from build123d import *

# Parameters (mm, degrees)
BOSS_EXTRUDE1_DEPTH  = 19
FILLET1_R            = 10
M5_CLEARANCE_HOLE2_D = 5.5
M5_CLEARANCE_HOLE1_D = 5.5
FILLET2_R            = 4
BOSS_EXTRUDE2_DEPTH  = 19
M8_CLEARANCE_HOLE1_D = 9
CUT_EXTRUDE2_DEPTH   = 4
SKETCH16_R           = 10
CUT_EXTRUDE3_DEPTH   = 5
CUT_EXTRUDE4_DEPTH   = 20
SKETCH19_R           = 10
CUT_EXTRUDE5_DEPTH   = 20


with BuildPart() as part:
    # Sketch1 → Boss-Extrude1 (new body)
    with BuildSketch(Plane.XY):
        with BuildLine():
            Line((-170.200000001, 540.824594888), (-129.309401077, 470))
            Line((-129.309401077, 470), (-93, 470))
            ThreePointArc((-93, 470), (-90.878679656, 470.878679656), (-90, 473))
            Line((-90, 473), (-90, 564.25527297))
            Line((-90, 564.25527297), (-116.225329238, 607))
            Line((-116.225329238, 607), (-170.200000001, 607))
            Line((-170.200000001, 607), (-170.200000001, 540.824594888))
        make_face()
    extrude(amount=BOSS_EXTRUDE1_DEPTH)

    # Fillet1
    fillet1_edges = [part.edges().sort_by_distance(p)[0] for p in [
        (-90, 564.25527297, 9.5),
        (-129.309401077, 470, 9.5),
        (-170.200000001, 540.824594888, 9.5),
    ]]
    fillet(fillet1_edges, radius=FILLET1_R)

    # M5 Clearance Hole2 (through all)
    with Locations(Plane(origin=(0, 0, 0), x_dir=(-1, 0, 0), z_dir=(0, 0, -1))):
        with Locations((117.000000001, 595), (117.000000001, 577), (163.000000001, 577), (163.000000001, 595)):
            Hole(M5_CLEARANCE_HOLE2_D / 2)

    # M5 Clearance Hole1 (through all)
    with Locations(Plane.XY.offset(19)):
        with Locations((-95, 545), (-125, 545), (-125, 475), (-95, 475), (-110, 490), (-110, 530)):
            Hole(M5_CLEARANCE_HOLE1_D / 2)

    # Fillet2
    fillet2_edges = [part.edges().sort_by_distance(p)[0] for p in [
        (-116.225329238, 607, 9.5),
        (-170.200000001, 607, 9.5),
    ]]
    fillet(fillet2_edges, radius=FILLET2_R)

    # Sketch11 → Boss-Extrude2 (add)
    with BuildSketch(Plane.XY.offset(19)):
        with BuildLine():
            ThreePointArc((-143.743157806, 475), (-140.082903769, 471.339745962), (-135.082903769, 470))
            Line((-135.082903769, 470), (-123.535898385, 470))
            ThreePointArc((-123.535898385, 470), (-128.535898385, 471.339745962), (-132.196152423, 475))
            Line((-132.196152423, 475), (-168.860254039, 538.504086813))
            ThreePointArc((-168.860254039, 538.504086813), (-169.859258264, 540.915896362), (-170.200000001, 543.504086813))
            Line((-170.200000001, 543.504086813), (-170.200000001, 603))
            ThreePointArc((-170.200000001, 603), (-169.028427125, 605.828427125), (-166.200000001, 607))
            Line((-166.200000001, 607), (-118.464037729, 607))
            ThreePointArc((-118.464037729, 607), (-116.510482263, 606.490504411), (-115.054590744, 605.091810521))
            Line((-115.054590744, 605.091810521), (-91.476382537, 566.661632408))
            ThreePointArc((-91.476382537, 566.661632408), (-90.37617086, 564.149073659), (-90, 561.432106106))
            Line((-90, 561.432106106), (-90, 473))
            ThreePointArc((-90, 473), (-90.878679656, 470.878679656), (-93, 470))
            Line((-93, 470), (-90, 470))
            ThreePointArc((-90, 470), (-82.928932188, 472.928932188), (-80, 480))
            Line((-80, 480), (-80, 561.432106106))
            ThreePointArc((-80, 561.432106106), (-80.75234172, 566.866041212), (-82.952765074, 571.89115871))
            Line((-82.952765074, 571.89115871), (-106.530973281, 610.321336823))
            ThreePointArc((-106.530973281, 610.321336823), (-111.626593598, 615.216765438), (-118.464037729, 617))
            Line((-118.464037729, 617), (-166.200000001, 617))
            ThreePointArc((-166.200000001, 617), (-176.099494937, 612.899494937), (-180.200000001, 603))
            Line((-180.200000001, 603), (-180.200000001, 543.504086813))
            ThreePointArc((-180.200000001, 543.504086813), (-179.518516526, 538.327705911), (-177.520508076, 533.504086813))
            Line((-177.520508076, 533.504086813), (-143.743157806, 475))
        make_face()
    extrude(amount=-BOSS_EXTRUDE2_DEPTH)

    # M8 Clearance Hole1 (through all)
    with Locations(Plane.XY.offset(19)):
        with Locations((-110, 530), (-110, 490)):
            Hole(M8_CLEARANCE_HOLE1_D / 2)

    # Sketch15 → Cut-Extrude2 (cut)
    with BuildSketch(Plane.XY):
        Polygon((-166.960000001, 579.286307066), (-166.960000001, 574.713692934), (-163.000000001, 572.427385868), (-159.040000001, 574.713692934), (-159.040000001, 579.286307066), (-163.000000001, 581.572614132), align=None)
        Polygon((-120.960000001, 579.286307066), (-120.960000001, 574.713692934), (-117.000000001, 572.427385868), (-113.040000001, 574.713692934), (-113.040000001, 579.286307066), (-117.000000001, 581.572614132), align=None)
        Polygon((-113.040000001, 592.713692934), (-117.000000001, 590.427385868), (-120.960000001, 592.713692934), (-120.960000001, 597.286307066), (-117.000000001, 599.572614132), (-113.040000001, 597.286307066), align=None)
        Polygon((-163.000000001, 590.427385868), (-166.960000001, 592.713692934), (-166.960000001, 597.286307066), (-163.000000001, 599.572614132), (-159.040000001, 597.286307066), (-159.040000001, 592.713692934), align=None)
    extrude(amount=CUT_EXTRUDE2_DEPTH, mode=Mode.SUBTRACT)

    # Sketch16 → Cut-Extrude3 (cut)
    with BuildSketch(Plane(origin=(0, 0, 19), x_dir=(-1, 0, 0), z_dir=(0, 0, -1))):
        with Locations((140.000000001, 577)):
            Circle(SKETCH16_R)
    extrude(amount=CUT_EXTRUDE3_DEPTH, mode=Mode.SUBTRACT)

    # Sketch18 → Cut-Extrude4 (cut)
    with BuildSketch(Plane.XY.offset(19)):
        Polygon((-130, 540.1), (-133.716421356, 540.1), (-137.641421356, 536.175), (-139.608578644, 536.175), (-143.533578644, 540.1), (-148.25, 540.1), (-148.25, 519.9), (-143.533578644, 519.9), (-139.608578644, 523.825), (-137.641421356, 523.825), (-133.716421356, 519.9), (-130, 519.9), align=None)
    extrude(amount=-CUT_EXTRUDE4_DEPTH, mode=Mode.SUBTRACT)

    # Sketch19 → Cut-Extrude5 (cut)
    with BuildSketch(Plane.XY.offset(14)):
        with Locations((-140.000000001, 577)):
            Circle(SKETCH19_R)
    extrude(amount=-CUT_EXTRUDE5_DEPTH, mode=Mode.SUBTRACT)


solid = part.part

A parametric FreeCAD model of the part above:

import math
import FreeCAD as App
import Part
import Sketcher

V = App.Vector
Q = App.Units.Quantity


def edges_at(feature, points):
    """Names of the edges that pass closest to the given points."""
    edges = feature.Shape.Edges
    near = lambda p: min(range(len(edges)), key=lambda i: edges[i].distToShape(Part.Vertex(*p))[0])
    return sorted({f"Edge{near(p) + 1}" for p in points})

doc = App.newDocument("Part")
body = doc.addObject("PartDesign::Body", "Body")

sketch1 = doc.addObject("Sketcher::SketchObject", "Sketch")
body.addObject(sketch1)
sketch1.AttachmentSupport = (doc.XY_Plane, [""])
sketch1.MapMode = "FlatFace"
sketch1.addGeometry([
    Part.LineSegment(V(-170.2, 540.8, 0), V(-129.3, 470, 0)),
    Part.LineSegment(V(-129.3, 470, 0), V(-93, 470, 0)),
    Part.ArcOfCircle(Part.Circle(V(-93, 473, 0), V(0, 0, 1), 3), math.radians(-90), math.radians(0)),
    Part.LineSegment(V(-90, 473, 0), V(-90, 564.3, 0)),
    Part.LineSegment(V(-90, 564.3, 0), V(-116.2, 607, 0)),
    Part.LineSegment(V(-116.2, 607, 0), V(-170.2, 607, 0)),
    Part.LineSegment(V(-170.2, 607, 0), V(-170.2, 540.8, 0)),
], False)
sketch1.addConstraint([
    Sketcher.Constraint("Coincident", 0, 2, 1, 1),
    Sketcher.Constraint("Tangent", 1, 2, 2, 1),
    Sketcher.Constraint("Tangent", 2, 2, 3, 1),
    Sketcher.Constraint("Coincident", 3, 2, 4, 1),
    Sketcher.Constraint("Coincident", 4, 2, 5, 1),
    Sketcher.Constraint("Coincident", 5, 2, 6, 1),
    Sketcher.Constraint("Coincident", 6, 2, 0, 1),
    Sketcher.Constraint("Horizontal", 1),
    Sketcher.Constraint("Vertical", 3),
    Sketcher.Constraint("Horizontal", 5),
    Sketcher.Constraint("Vertical", 6),
    Sketcher.Constraint("Radius", 2, 3.0),
    Sketcher.Constraint("Angle", 0, Q("-60 deg")),
    Sketcher.Constraint("DistanceX", 2, 3, -1, 1, 93.0),
    Sketcher.Constraint("DistanceY", -1, 1, 2, 3, 473.0),
    Sketcher.Constraint("DistanceY", -1, 1, 4, 2, 607.0),
    Sketcher.Constraint("DistanceX", 5, 2, -1, 1, 170.2),
    Sketcher.Constraint("DistanceX", 1, 1, 1, 2, 36.309401),
    Sketcher.Constraint("DistanceX", 5, 2, 5, 1, 53.974671),
    Sketcher.Constraint("DistanceY", 3, 1, 3, 2, 91.255273),
])
pad1 = doc.addObject("PartDesign::Pad", "Pad")
body.addObject(pad1)
pad1.Profile = sketch1
pad1.Length = 19
doc.recompute()

fillet = doc.addObject("PartDesign::Fillet", "Fillet")
body.addObject(fillet)
fillet.Base = (pad1, edges_at(pad1, [(-90, 564.255, 9.5), (-129.309, 470, 9.5), (-170.2, 540.825, 9.5)]))
fillet.Radius = 10

sketch2 = doc.addObject("Sketcher::SketchObject", "Sketch001")
body.addObject(sketch2)
sketch2.AttachmentSupport = (doc.XY_Plane, [""])
sketch2.MapMode = "FlatFace"
sketch2.addGeometry([
    Part.Circle(V(-117, 595, 0), V(0, 0, 1), 2.8),
    Part.Circle(V(-117, 577, 0), V(0, 0, 1), 2.8),
    Part.Circle(V(-163, 577, 0), V(0, 0, 1), 2.8),
    Part.Circle(V(-163, 595, 0), V(0, 0, 1), 2.8),
], False)
sketch2.addConstraint([
    Sketcher.Constraint("Equal", 0, 1),
    Sketcher.Constraint("Equal", 1, 2),
    Sketcher.Constraint("Equal", 2, 3),
    Sketcher.Constraint("Horizontal", 1, 3, 2, 3),
    Sketcher.Constraint("Horizontal", 0, 3, 3, 3),
    Sketcher.Constraint("Vertical", 0, 3, 1, 3),
    Sketcher.Constraint("Vertical", 2, 3, 3, 3),
    Sketcher.Constraint("Diameter", 0, 5.5),
    Sketcher.Constraint("DistanceX", 0, 3, -1, 1, 117.0),
    Sketcher.Constraint("DistanceY", -1, 1, 0, 3, 595.0),
    Sketcher.Constraint("DistanceY", -1, 1, 1, 3, 577.0),
    Sketcher.Constraint("DistanceX", 2, 3, -1, 1, 163.0),
])
doc.recompute()
hole = doc.addObject("PartDesign::Hole", "Hole")
body.addObject(hole)
hole.Profile = sketch2
hole.ThreadType = "None"
hole.Diameter = 5.5
hole.DepthType = "ThroughAll"
hole.Reversed = True

sketch3 = doc.addObject("Sketcher::SketchObject", "Sketch002")
body.addObject(sketch3)
sketch3.AttachmentSupport = (doc.XY_Plane, [""])
sketch3.MapMode = "FlatFace"
sketch3.AttachmentOffset = App.Placement(V(0, 0, 19), App.Rotation())
sketch3.addGeometry([
    Part.Circle(V(-95, 545, 0), V(0, 0, 1), 2.8),
    Part.Circle(V(-125, 545, 0), V(0, 0, 1), 2.8),
    Part.Circle(V(-125, 475, 0), V(0, 0, 1), 2.8),
    Part.Circle(V(-95, 475, 0), V(0, 0, 1), 2.8),
    Part.Circle(V(-110, 490, 0), V(0, 0, 1), 2.8),
    Part.Circle(V(-110, 530, 0), V(0, 0, 1), 2.8),
], False)
sketch3.addConstraint([
    Sketcher.Constraint("Equal", 0, 1),
    Sketcher.Constraint("Equal", 1, 2),
    Sketcher.Constraint("Equal", 2, 3),
    Sketcher.Constraint("Equal", 3, 4),
    Sketcher.Constraint("Equal", 4, 5),
    Sketcher.Constraint("Horizontal", 0, 3, 1, 3),
    Sketcher.Constraint("Horizontal", 2, 3, 3, 3),
    Sketcher.Constraint("Vertical", 1, 3, 2, 3),
    Sketcher.Constraint("Vertical", 0, 3, 3, 3),
    Sketcher.Constraint("Vertical", 4, 3, 5, 3),
    Sketcher.Constraint("Diameter", 0, 5.5),
    Sketcher.Constraint("DistanceX", 0, 3, -1, 1, 95.0),
    Sketcher.Constraint("DistanceY", -1, 1, 0, 3, 545.0),
    Sketcher.Constraint("DistanceX", 1, 3, -1, 1, 125.0),
    Sketcher.Constraint("DistanceY", -1, 1, 2, 3, 475.0),
    Sketcher.Constraint("DistanceX", 4, 3, -1, 1, 110.0),
    Sketcher.Constraint("DistanceY", -1, 1, 4, 3, 490.0),
    Sketcher.Constraint("DistanceY", -1, 1, 5, 3, 530.0),
])
doc.recompute()
hole2 = doc.addObject("PartDesign::Hole", "Hole001")
body.addObject(hole2)
hole2.Profile = sketch3
hole2.ThreadType = "None"
hole2.Diameter = 5.5
hole2.DepthType = "ThroughAll"
doc.recompute()

fillet2 = doc.addObject("PartDesign::Fillet", "Fillet001")
body.addObject(fillet2)
fillet2.Base = (hole2, edges_at(hole2, [(-116.225, 607, 9.5), (-170.2, 607, 9.5)]))
fillet2.Radius = 4

sketch4 = doc.addObject("Sketcher::SketchObject", "Sketch003")
body.addObject(sketch4)
sketch4.AttachmentSupport = (doc.XY_Plane, [""])
sketch4.MapMode = "FlatFace"
sketch4.AttachmentOffset = App.Placement(V(0, 0, 19), App.Rotation())
sketch4.addGeometry([
    Part.ArcOfCircle(Part.Circle(V(-135.1, 480, 0), V(0, 0, 1), 10), math.radians(-150), math.radians(-90)),
    Part.LineSegment(V(-135.1, 470, 0), V(-123.5, 470, 0)),
    Part.ArcOfCircle(Part.Circle(V(-123.5, 480, 0), V(0, 0, 1), 10), math.radians(-150), math.radians(-90)),
    Part.LineSegment(V(-132.2, 475, 0), V(-168.9, 538.5, 0)),
    Part.ArcOfCircle(Part.Circle(V(-160.2, 543.5, 0), V(0, 0, 1), 10), math.radians(180), math.radians(210)),
    Part.LineSegment(V(-170.2, 543.5, 0), V(-170.2, 603, 0)),
    Part.ArcOfCircle(Part.Circle(V(-166.2, 603, 0), V(0, 0, 1), 4), math.radians(90), math.radians(180)),
    Part.LineSegment(V(-166.2, 607, 0), V(-118.5, 607, 0)),
    Part.ArcOfCircle(Part.Circle(V(-118.5, 603, 0), V(0, 0, 1), 4), math.radians(32), math.radians(90)),
    Part.LineSegment(V(-115.1, 605.1, 0), V(-91.5, 566.7, 0)),
    Part.ArcOfCircle(Part.Circle(V(-100, 561.4, 0), V(0, 0, 1), 10), math.radians(0), math.radians(32)),
    Part.LineSegment(V(-90, 561.4, 0), V(-90, 473, 0)),
    Part.ArcOfCircle(Part.Circle(V(-93, 473, 0), V(0, 0, 1), 3), math.radians(-90), math.radians(0)),
    Part.LineSegment(V(-93, 470, 0), V(-90, 470, 0)),
    Part.ArcOfCircle(Part.Circle(V(-90, 480, 0), V(0, 0, 1), 10), math.radians(-90), math.radians(0)),
    Part.LineSegment(V(-80, 480, 0), V(-80, 561.4, 0)),
    Part.ArcOfCircle(Part.Circle(V(-100, 561.4, 0), V(0, 0, 1), 20), math.radians(0), math.radians(32)),
    Part.LineSegment(V(-83, 571.9, 0), V(-106.5, 610.3, 0)),
    Part.ArcOfCircle(Part.Circle(V(-118.5, 603, 0), V(0, 0, 1), 14), math.radians(32), math.radians(90)),
    Part.LineSegment(V(-118.5, 617, 0), V(-166.2, 617, 0)),
    Part.ArcOfCircle(Part.Circle(V(-166.2, 603, 0), V(0, 0, 1), 14), math.radians(90), math.radians(180)),
    Part.LineSegment(V(-180.2, 603, 0), V(-180.2, 543.5, 0)),
    Part.ArcOfCircle(Part.Circle(V(-160.2, 543.5, 0), V(0, 0, 1), 20), math.radians(-180), math.radians(-150)),
    Part.LineSegment(V(-177.5, 533.5, 0), V(-143.7, 475, 0)),
], False)
sketch4.addConstraint([
    Sketcher.Constraint("Tangent", 0, 2, 1, 1),
    Sketcher.Constraint("Tangent", 1, 2, 2, 2),
    Sketcher.Constraint("Tangent", 2, 1, 3, 1),
    Sketcher.Constraint("Tangent", 3, 2, 4, 2),
    Sketcher.Constraint("Tangent", 4, 1, 5, 1),
    Sketcher.Constraint("Tangent", 5, 2, 6, 2),
    Sketcher.Constraint("Tangent", 6, 1, 7, 1),
    Sketcher.Constraint("Tangent", 7, 2, 8, 2),
    Sketcher.Constraint("Tangent", 8, 1, 9, 1),
    Sketcher.Constraint("Tangent", 9, 2, 10, 2),
    Sketcher.Constraint("Tangent", 10, 1, 11, 1),
    Sketcher.Constraint("Tangent", 11, 2, 12, 2),
    Sketcher.Constraint("Tangent", 12, 1, 13, 1),
    Sketcher.Constraint("Tangent", 13, 2, 14, 1),
    Sketcher.Constraint("Tangent", 14, 2, 15, 1),
    Sketcher.Constraint("Tangent", 15, 2, 16, 1),
    Sketcher.Constraint("Tangent", 16, 2, 17, 1),
    Sketcher.Constraint("Tangent", 17, 2, 18, 1),
    Sketcher.Constraint("Tangent", 18, 2, 19, 1),
    Sketcher.Constraint("Tangent", 19, 2, 20, 1),
    Sketcher.Constraint("Tangent", 20, 2, 21, 1),
    Sketcher.Constraint("Tangent", 21, 2, 22, 1),
    Sketcher.Constraint("Tangent", 22, 2, 23, 1),
    Sketcher.Constraint("Tangent", 23, 2, 0, 1),
    Sketcher.Constraint("Horizontal", 1),
    Sketcher.Constraint("Vertical", 5),
    Sketcher.Constraint("Horizontal", 7),
    Sketcher.Constraint("Vertical", 11),
    Sketcher.Constraint("Horizontal", 13),
    Sketcher.Constraint("Vertical", 15),
    Sketcher.Constraint("Horizontal", 19),
    Sketcher.Constraint("Vertical", 21),
    Sketcher.Constraint("Coincident", 16, 3, 10, 3),
    Sketcher.Constraint("Coincident", 18, 3, 8, 3),
    Sketcher.Constraint("Coincident", 20, 3, 6, 3),
    Sketcher.Constraint("Coincident", 22, 3, 4, 3),
    Sketcher.Constraint("Equal", 0, 2),
    Sketcher.Constraint("Equal", 2, 4),
    Sketcher.Constraint("Equal", 6, 8),
    Sketcher.Constraint("Equal", 4, 10),
    Sketcher.Constraint("Equal", 10, 14),
    Sketcher.Constraint("Equal", 16, 22),
    Sketcher.Constraint("Parallel", 3, 23),
    Sketcher.Constraint("Horizontal", 2, 3, 14, 3),
    Sketcher.Constraint("Vertical", 14, 3, 10, 1),
    Sketcher.Constraint("Radius", 0, 10.0),
    Sketcher.Constraint("Radius", 6, 4.0),
    Sketcher.Constraint("Radius", 12, 3.0),
    Sketcher.Constraint("Angle", 3, Q("120 deg")),
    Sketcher.Constraint("DistanceY", -1, 1, 0, 3, 480.0),
    Sketcher.Constraint("DistanceY", -1, 1, 6, 3, 603.0),
    Sketcher.Constraint("DistanceX", 10, 3, -1, 1, 100.0),
    Sketcher.Constraint("DistanceX", 4, 3, -1, 1, 160.2),
    Sketcher.Constraint("Distance", 9, 45.0867),
    Sketcher.Constraint("Distance", 23, 67.554701),
    Sketcher.Constraint("DistanceX", 7, 1, 7, 2, 47.735962),
])
pad2 = doc.addObject("PartDesign::Pad", "Pad001")
body.addObject(pad2)
pad2.Profile = sketch4
pad2.Length = 19
pad2.Reversed = True

sketch5 = doc.addObject("Sketcher::SketchObject", "Sketch004")
body.addObject(sketch5)
sketch5.AttachmentSupport = (doc.XY_Plane, [""])
sketch5.MapMode = "FlatFace"
sketch5.AttachmentOffset = App.Placement(V(0, 0, 19), App.Rotation())
sketch5.addGeometry([
    Part.Circle(V(-110, 530, 0), V(0, 0, 1), 4.5),
    Part.Circle(V(-110, 490, 0), V(0, 0, 1), 4.5),
], False)
sketch5.addConstraint([
    Sketcher.Constraint("Equal", 0, 1),
    Sketcher.Constraint("Vertical", 0, 3, 1, 3),
    Sketcher.Constraint("Diameter", 0, 9.0),
    Sketcher.Constraint("DistanceX", 0, 3, -1, 1, 110.0),
    Sketcher.Constraint("DistanceY", -1, 1, 0, 3, 530.0),
    Sketcher.Constraint("DistanceY", -1, 1, 1, 3, 490.0),
])
doc.recompute()
hole3 = doc.addObject("PartDesign::Hole", "Hole002")
body.addObject(hole3)
hole3.Profile = sketch5
hole3.ThreadType = "None"
hole3.Diameter = 9
hole3.DepthType = "ThroughAll"

sketch6 = doc.addObject("Sketcher::SketchObject", "Sketch005")
body.addObject(sketch6)
sketch6.AttachmentSupport = (doc.XY_Plane, [""])
sketch6.MapMode = "FlatFace"
sketch6.addGeometry([
    Part.LineSegment(V(-167, 579.3, 0), V(-167, 574.7, 0)),
    Part.LineSegment(V(-167, 574.7, 0), V(-163, 572.4, 0)),
    Part.LineSegment(V(-163, 572.4, 0), V(-159, 574.7, 0)),
    Part.LineSegment(V(-159, 574.7, 0), V(-159, 579.3, 0)),
    Part.LineSegment(V(-159, 579.3, 0), V(-163, 581.6, 0)),
    Part.LineSegment(V(-163, 581.6, 0), V(-167, 579.3, 0)),
    Part.LineSegment(V(-121, 579.3, 0), V(-121, 574.7, 0)),
    Part.LineSegment(V(-121, 574.7, 0), V(-117, 572.4, 0)),
    Part.LineSegment(V(-117, 572.4, 0), V(-113, 574.7, 0)),
    Part.LineSegment(V(-113, 574.7, 0), V(-113, 579.3, 0)),
    Part.LineSegment(V(-113, 579.3, 0), V(-117, 581.6, 0)),
    Part.LineSegment(V(-117, 581.6, 0), V(-121, 579.3, 0)),
    Part.LineSegment(V(-117, 590.4, 0), V(-113, 592.7, 0)),
    Part.LineSegment(V(-113, 592.7, 0), V(-113, 597.3, 0)),
    Part.LineSegment(V(-113, 597.3, 0), V(-117, 599.6, 0)),
    Part.LineSegment(V(-117, 599.6, 0), V(-121, 597.3, 0)),
    Part.LineSegment(V(-121, 597.3, 0), V(-121, 592.7, 0)),
    Part.LineSegment(V(-121, 592.7, 0), V(-117, 590.4, 0)),
    Part.LineSegment(V(-167, 592.7, 0), V(-163, 590.4, 0)),
    Part.LineSegment(V(-163, 590.4, 0), V(-159, 592.7, 0)),
    Part.LineSegment(V(-159, 592.7, 0), V(-159, 597.3, 0)),
    Part.LineSegment(V(-159, 597.3, 0), V(-163, 599.6, 0)),
    Part.LineSegment(V(-163, 599.6, 0), V(-167, 597.3, 0)),
    Part.LineSegment(V(-167, 597.3, 0), V(-167, 592.7, 0)),
], False)
sketch6.addConstraint([
    Sketcher.Constraint("Coincident", 0, 2, 1, 1),
    Sketcher.Constraint("Coincident", 1, 2, 2, 1),
    Sketcher.Constraint("Coincident", 2, 2, 3, 1),
    Sketcher.Constraint("Coincident", 3, 2, 4, 1),
    Sketcher.Constraint("Coincident", 4, 2, 5, 1),
    Sketcher.Constraint("Coincident", 5, 2, 0, 1),
    Sketcher.Constraint("Coincident", 6, 2, 7, 1),
    Sketcher.Constraint("Coincident", 7, 2, 8, 1),
    Sketcher.Constraint("Coincident", 8, 2, 9, 1),
    Sketcher.Constraint("Coincident", 9, 2, 10, 1),
    Sketcher.Constraint("Coincident", 10, 2, 11, 1),
    Sketcher.Constraint("Coincident", 11, 2, 6, 1),
    Sketcher.Constraint("Coincident", 12, 2, 13, 1),
    Sketcher.Constraint("Coincident", 13, 2, 14, 1),
    Sketcher.Constraint("Coincident", 14, 2, 15, 1),
    Sketcher.Constraint("Coincident", 15, 2, 16, 1),
    Sketcher.Constraint("Coincident", 16, 2, 17, 1),
    Sketcher.Constraint("Coincident", 17, 2, 12, 1),
    Sketcher.Constraint("Coincident", 18, 2, 19, 1),
    Sketcher.Constraint("Coincident", 19, 2, 20, 1),
    Sketcher.Constraint("Coincident", 20, 2, 21, 1),
    Sketcher.Constraint("Coincident", 21, 2, 22, 1),
    Sketcher.Constraint("Coincident", 22, 2, 23, 1),
    Sketcher.Constraint("Coincident", 23, 2, 18, 1),
    Sketcher.Constraint("Vertical", 0),
    Sketcher.Constraint("Vertical", 3),
    Sketcher.Constraint("Vertical", 6),
    Sketcher.Constraint("Vertical", 9),
    Sketcher.Constraint("Vertical", 13),
    Sketcher.Constraint("Vertical", 16),
    Sketcher.Constraint("Vertical", 20),
    Sketcher.Constraint("Vertical", 23),
    Sketcher.Constraint("Parallel", 1, 4),
    Sketcher.Constraint("Parallel", 2, 5),
    Sketcher.Constraint("Parallel", 4, 7),
    Sketcher.Constraint("Parallel", 5, 8),
    Sketcher.Constraint("Parallel", 7, 10),
    Sketcher.Constraint("Parallel", 8, 11),
    Sketcher.Constraint("Parallel", 11, 12),
    Sketcher.Constraint("Parallel", 10, 14),
    Sketcher.Constraint("Parallel", 12, 15),
    Sketcher.Constraint("Parallel", 14, 17),
    Sketcher.Constraint("Parallel", 17, 18),
    Sketcher.Constraint("Parallel", 15, 19),
    Sketcher.Constraint("Parallel", 18, 21),
    Sketcher.Constraint("Parallel", 19, 22),
    Sketcher.Constraint("Horizontal", 0, 2, 2, 2),
    Sketcher.Constraint("Horizontal", 3, 2, 5, 2),
    Sketcher.Constraint("Horizontal", 2, 2, 6, 2),
    Sketcher.Constraint("Horizontal", 1, 2, 7, 2),
    Sketcher.Constraint("Horizontal", 6, 2, 8, 2),
    Sketcher.Constraint("Horizontal", 5, 2, 9, 2),
    Sketcher.Constraint("Horizontal", 4, 2, 10, 2),
    Sketcher.Constraint("Horizontal", 13, 2, 15, 2),
    Sketcher.Constraint("Horizontal", 12, 2, 16, 2),
    Sketcher.Constraint("Horizontal", 17, 2, 18, 2),
    Sketcher.Constraint("Horizontal", 16, 2, 19, 2),
    Sketcher.Constraint("Horizontal", 15, 2, 20, 2),
    Sketcher.Constraint("Horizontal", 14, 2, 21, 2),
    Sketcher.Constraint("Horizontal", 20, 2, 22, 2),
    Sketcher.Constraint("Vertical", 1, 2, 4, 2),
    Sketcher.Constraint("Vertical", 9, 2, 12, 2),
    Sketcher.Constraint("Vertical", 10, 2, 14, 2),
    Sketcher.Constraint("Vertical", 4, 2, 18, 2),
    Sketcher.Constraint("Equal", 9, 13),
    Sketcher.Constraint("Angle", 1, Q("-30 deg")),
    Sketcher.Constraint("DistanceX", 1, 2, -1, 1, 163.0),
    Sketcher.Constraint("DistanceX", 7, 2, -1, 1, 117.0),
    Sketcher.Constraint("DistanceY", 8, 2, 12, 2, 18.0),
    Sketcher.Constraint("DistanceX", 0, 2, -1, 1, 166.96),
    Sketcher.Constraint("DistanceY", 0, 2, 0, 1, 4.572614),
    Sketcher.Constraint("DistanceY", -1, 1, 0, 2, 574.713693),
])
pocket1 = doc.addObject("PartDesign::Pocket", "Pocket")
body.addObject(pocket1)
pocket1.Profile = sketch6
pocket1.Length = 4
pocket1.Reversed = True

sketch7 = doc.addObject("Sketcher::SketchObject", "Sketch006")
body.addObject(sketch7)
sketch7.AttachmentSupport = (doc.XY_Plane, [""])
sketch7.MapMode = "FlatFace"
sketch7.AttachmentOffset = App.Placement(V(0, 0, 19), App.Rotation())
sketch7.addGeometry(Part.Circle(V(-140, 577, 0), V(0, 0, 1), 10), False)
sketch7.addConstraint([
    Sketcher.Constraint("Diameter", 0, 20.0),
    Sketcher.Constraint("DistanceX", 0, 3, -1, 1, 140.0),
    Sketcher.Constraint("DistanceY", -1, 1, 0, 3, 577.0),
])
pocket2 = doc.addObject("PartDesign::Pocket", "Pocket001")
body.addObject(pocket2)
pocket2.Profile = sketch7
pocket2.Length = 5

sketch8 = doc.addObject("Sketcher::SketchObject", "Sketch007")
body.addObject(sketch8)
sketch8.AttachmentSupport = (doc.XY_Plane, [""])
sketch8.MapMode = "FlatFace"
sketch8.AttachmentOffset = App.Placement(V(0, 0, 19), App.Rotation())
sketch8.addGeometry([
    Part.LineSegment(V(-130, 540.1, 0), V(-133.7, 540.1, 0)),
    Part.LineSegment(V(-133.7, 540.1, 0), V(-137.6, 536.2, 0)),
    Part.LineSegment(V(-137.6, 536.2, 0), V(-139.6, 536.2, 0)),
    Part.LineSegment(V(-139.6, 536.2, 0), V(-143.5, 540.1, 0)),
    Part.LineSegment(V(-143.5, 540.1, 0), V(-148.2, 540.1, 0)),
    Part.LineSegment(V(-148.2, 540.1, 0), V(-148.2, 519.9, 0)),
    Part.LineSegment(V(-148.2, 519.9, 0), V(-143.5, 519.9, 0)),
    Part.LineSegment(V(-143.5, 519.9, 0), V(-139.6, 523.8, 0)),
    Part.LineSegment(V(-139.6, 523.8, 0), V(-137.6, 523.8, 0)),
    Part.LineSegment(V(-137.6, 523.8, 0), V(-133.7, 519.9, 0)),
    Part.LineSegment(V(-133.7, 519.9, 0), V(-130, 519.9, 0)),
    Part.LineSegment(V(-130, 519.9, 0), V(-130, 540.1, 0)),
], False)
sketch8.addConstraint([
    Sketcher.Constraint("Coincident", 0, 2, 1, 1),
    Sketcher.Constraint("Coincident", 1, 2, 2, 1),
    Sketcher.Constraint("Coincident", 2, 2, 3, 1),
    Sketcher.Constraint("Coincident", 3, 2, 4, 1),
    Sketcher.Constraint("Coincident", 4, 2, 5, 1),
    Sketcher.Constraint("Coincident", 5, 2, 6, 1),
    Sketcher.Constraint("Coincident", 6, 2, 7, 1),
    Sketcher.Constraint("Coincident", 7, 2, 8, 1),
    Sketcher.Constraint("Coincident", 8, 2, 9, 1),
    Sketcher.Constraint("Coincident", 9, 2, 10, 1),
    Sketcher.Constraint("Coincident", 10, 2, 11, 1),
    Sketcher.Constraint("Coincident", 11, 2, 0, 1),
    Sketcher.Constraint("Horizontal", 0),
    Sketcher.Constraint("Horizontal", 2),
    Sketcher.Constraint("Horizontal", 4),
    Sketcher.Constraint("Vertical", 5),
    Sketcher.Constraint("Horizontal", 6),
    Sketcher.Constraint("Horizontal", 8),
    Sketcher.Constraint("Horizontal", 10),
    Sketcher.Constraint("Vertical", 11),
    Sketcher.Constraint("Perpendicular", 1, 3),
    Sketcher.Constraint("Perpendicular", 3, 7),
    Sketcher.Constraint("Perpendicular", 7, 9),
    Sketcher.Constraint("Horizontal", 0, 2, 3, 2),
    Sketcher.Constraint("Horizontal", 6, 2, 9, 2),
    Sketcher.Constraint("Vertical", 3, 2, 6, 2),
    Sketcher.Constraint("Vertical", 2, 2, 7, 2),
    Sketcher.Constraint("Vertical", 1, 2, 8, 2),
    Sketcher.Constraint("Vertical", 0, 2, 9, 2),
    Sketcher.Constraint("DistanceY", 5, 2, 5, 1, 20.2),
    Sketcher.Constraint("DistanceX", 10, 2, -1, 1, 130.0),
    Sketcher.Constraint("DistanceY", -1, 1, 0, 2, 540.1),
    Sketcher.Constraint("DistanceX", 4, 2, -1, 1, 148.25),
    Sketcher.Constraint("DistanceY", 7, 2, 2, 2, 12.35),
    Sketcher.Constraint("DistanceX", 0, 2, 0, 1, 3.716421),
    Sketcher.Constraint("DistanceX", 4, 2, 4, 1, 4.716421),
])
pocket3 = doc.addObject("PartDesign::Pocket", "Pocket002")
body.addObject(pocket3)
pocket3.Profile = sketch8
pocket3.Length = 20

sketch9 = doc.addObject("Sketcher::SketchObject", "Sketch008")
body.addObject(sketch9)
sketch9.AttachmentSupport = (doc.XY_Plane, [""])
sketch9.MapMode = "FlatFace"
sketch9.AttachmentOffset = App.Placement(V(0, 0, 14), App.Rotation())
sketch9.addGeometry(Part.Circle(V(-140, 577, 0), V(0, 0, 1), 10), False)
sketch9.addConstraint([
    Sketcher.Constraint("Diameter", 0, 20.0),
    Sketcher.Constraint("DistanceX", 0, 3, -1, 1, 140.0),
    Sketcher.Constraint("DistanceY", -1, 1, 0, 3, 577.0),
])
pocket4 = doc.addObject("PartDesign::Pocket", "Pocket003")
body.addObject(pocket4)
pocket4.Profile = sketch9
pocket4.Length = 20

doc.recompute()
